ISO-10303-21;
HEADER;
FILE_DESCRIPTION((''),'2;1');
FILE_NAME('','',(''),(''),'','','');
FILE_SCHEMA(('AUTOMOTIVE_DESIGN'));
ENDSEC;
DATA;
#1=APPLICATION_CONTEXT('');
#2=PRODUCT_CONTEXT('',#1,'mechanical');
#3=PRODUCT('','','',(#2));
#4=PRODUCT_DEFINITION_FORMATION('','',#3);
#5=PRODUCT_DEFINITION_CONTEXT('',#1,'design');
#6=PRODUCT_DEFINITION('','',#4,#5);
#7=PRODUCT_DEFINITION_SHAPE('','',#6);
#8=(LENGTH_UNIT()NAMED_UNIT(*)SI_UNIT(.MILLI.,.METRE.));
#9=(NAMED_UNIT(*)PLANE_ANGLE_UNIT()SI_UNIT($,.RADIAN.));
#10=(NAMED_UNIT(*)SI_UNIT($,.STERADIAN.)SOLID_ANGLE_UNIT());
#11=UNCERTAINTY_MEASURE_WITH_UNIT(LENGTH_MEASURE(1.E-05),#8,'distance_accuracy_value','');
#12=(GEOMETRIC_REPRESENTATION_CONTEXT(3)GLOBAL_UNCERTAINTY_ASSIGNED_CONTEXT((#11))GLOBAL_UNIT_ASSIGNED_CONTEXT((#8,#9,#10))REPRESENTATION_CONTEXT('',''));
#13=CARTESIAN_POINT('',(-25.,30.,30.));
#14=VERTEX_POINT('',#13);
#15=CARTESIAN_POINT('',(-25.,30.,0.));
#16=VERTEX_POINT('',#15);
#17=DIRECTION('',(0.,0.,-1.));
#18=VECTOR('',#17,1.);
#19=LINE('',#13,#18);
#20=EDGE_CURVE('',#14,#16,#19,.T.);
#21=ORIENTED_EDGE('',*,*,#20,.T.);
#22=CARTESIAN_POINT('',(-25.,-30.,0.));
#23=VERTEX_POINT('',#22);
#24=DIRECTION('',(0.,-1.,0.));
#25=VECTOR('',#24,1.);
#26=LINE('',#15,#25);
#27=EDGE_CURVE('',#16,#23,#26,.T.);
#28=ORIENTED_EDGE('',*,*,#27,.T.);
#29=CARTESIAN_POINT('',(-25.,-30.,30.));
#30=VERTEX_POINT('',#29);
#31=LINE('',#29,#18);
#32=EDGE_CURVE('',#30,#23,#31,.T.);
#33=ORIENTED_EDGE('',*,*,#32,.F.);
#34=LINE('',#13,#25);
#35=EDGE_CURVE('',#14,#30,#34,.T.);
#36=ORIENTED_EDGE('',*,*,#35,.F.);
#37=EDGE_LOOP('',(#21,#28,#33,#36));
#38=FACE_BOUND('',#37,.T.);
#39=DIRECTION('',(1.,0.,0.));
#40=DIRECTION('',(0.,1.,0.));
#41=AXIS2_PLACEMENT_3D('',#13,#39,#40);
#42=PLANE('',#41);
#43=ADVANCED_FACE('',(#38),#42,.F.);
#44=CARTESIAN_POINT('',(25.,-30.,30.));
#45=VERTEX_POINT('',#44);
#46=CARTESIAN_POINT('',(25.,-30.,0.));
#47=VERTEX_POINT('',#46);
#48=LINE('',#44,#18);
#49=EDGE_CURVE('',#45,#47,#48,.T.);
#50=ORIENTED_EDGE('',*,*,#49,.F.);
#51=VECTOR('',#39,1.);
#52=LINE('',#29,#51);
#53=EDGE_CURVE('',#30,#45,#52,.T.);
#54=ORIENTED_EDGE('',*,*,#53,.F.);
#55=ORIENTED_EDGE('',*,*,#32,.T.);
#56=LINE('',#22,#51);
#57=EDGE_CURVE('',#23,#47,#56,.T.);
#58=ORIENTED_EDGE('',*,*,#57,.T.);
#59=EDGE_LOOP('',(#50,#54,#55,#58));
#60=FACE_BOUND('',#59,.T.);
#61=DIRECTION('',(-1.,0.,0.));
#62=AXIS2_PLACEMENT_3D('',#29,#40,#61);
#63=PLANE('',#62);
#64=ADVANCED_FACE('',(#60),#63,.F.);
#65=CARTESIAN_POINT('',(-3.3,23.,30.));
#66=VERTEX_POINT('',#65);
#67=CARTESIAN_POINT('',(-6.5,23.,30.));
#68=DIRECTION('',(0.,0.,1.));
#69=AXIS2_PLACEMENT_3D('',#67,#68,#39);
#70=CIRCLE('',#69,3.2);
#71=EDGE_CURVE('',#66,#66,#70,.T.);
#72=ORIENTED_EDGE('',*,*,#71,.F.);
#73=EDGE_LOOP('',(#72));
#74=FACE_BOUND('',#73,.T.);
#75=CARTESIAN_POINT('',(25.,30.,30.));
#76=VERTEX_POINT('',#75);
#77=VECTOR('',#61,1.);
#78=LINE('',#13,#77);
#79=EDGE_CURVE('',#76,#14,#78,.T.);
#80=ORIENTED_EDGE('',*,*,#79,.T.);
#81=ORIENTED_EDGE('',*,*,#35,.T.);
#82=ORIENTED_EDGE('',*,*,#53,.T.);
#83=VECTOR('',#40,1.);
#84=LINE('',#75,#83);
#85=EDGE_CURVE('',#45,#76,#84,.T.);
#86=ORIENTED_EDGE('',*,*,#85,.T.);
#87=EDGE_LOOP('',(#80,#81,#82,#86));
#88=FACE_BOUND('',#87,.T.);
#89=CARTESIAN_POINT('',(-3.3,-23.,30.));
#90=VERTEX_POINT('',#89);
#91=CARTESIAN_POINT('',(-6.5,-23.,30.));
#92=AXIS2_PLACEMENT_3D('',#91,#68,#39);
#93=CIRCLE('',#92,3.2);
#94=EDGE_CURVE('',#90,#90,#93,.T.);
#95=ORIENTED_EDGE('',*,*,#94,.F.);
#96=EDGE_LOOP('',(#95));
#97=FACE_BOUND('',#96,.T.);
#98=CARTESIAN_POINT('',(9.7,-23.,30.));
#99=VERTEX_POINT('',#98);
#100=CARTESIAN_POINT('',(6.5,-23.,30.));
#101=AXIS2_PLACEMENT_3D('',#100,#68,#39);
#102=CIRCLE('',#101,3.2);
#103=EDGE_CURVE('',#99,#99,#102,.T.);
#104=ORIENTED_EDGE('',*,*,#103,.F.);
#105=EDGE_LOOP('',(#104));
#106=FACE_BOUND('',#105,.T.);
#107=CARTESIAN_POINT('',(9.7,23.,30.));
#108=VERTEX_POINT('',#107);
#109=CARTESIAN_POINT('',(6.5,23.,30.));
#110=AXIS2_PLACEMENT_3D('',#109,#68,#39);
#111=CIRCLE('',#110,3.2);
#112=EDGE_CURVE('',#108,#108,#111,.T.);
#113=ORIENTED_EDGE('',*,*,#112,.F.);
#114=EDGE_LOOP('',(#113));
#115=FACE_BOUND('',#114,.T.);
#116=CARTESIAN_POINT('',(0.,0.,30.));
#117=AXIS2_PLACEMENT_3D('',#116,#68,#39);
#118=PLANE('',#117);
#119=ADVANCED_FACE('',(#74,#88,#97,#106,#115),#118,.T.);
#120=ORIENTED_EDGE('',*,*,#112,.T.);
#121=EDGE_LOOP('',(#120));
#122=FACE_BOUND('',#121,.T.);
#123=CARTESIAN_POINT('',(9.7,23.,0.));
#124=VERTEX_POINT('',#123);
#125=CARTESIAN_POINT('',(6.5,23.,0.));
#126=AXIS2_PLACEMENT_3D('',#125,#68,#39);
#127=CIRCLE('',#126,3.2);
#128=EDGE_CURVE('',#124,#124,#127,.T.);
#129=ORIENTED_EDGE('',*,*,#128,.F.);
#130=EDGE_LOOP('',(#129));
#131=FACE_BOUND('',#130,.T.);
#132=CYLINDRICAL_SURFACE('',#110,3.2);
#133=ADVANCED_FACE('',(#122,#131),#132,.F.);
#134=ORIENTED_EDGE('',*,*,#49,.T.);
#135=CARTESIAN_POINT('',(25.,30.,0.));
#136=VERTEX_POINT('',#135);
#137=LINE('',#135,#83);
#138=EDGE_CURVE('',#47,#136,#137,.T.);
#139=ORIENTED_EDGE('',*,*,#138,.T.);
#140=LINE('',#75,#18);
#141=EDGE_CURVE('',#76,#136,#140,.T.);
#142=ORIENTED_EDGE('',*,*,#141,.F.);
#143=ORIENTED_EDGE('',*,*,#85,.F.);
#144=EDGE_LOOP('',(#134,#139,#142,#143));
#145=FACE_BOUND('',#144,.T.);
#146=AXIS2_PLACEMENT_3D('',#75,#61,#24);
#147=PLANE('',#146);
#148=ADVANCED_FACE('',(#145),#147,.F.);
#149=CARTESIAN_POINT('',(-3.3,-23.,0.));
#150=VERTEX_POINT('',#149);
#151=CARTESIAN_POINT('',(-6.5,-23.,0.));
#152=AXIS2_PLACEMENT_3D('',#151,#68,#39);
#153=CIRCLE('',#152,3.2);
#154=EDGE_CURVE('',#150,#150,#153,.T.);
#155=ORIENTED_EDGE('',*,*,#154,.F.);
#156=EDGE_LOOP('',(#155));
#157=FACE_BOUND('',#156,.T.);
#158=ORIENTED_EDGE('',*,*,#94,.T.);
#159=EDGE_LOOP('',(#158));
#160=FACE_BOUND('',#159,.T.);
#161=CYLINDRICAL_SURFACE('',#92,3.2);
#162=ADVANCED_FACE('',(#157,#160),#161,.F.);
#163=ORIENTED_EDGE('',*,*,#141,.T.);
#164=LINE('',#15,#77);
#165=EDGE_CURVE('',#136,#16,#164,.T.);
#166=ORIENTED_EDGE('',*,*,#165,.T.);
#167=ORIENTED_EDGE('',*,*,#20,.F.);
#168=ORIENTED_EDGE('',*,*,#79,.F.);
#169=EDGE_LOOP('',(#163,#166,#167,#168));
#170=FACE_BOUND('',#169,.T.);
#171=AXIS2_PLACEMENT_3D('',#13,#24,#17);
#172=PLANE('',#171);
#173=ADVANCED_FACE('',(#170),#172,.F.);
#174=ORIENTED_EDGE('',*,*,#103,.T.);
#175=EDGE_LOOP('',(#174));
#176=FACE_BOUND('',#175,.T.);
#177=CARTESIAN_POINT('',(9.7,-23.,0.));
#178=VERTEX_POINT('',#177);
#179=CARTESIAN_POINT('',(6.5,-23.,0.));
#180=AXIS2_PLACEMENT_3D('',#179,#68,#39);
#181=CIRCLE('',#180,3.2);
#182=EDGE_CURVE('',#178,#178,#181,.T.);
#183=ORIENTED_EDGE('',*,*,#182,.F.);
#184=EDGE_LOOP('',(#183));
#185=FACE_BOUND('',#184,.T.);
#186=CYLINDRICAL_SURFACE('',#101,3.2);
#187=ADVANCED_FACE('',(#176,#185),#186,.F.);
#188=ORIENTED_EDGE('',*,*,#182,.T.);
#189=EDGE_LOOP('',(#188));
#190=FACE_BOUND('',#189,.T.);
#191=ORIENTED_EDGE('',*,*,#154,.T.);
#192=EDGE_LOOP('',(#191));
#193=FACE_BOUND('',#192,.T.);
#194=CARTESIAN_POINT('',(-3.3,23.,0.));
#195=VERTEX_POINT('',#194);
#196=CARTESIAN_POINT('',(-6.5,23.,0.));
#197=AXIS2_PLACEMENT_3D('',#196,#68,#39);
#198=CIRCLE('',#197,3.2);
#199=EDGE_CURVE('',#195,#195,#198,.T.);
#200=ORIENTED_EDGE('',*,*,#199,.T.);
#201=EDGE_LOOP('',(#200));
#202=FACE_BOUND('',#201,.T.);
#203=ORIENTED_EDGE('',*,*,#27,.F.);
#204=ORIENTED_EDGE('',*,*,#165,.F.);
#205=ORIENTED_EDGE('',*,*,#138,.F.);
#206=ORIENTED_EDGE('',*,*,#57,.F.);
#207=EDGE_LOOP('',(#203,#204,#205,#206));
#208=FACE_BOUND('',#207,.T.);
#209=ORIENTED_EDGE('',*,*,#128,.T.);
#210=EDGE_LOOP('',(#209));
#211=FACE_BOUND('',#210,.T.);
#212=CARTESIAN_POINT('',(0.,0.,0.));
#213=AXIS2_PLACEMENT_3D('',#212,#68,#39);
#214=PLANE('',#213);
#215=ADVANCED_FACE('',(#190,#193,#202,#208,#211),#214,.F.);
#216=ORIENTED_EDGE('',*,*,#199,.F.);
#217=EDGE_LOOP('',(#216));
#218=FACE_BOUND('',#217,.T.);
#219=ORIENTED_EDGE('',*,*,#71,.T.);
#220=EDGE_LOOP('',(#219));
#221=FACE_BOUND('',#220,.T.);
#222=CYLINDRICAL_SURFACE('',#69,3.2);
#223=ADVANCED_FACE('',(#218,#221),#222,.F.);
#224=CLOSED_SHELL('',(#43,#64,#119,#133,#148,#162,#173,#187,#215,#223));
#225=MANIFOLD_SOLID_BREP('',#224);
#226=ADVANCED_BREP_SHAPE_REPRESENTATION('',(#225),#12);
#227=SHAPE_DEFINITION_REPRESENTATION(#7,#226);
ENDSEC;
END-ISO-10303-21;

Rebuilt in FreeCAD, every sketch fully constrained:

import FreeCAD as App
import Part
import Sketcher

V = App.Vector


def add_polygon(sketch, points):
    """Adds a closed chain of lines whose ends are joined by coincident constraints."""
    first, n = sketch.GeometryCount, len(points)
    for a, b in zip(points, points[1:] + points[:1]):
        sketch.addGeometry(Part.LineSegment(App.Vector(*a, 0), App.Vector(*b, 0)), False)
    for i in range(n):
        sketch.addConstraint(Sketcher.Constraint("Coincident", first + i, 2, first + (i + 1) % n, 1))

doc = App.newDocument("Part")
body = doc.addObject("PartDesign::Body", "Body")

# Sketch on XY plane
sketch1 = doc.addObject("Sketcher::SketchObject", "Sketch")
body.addObject(sketch1)
sketch1.AttachmentSupport = (doc.XY_Plane, [""])
sketch1.MapMode = "FlatFace"
add_polygon(sketch1, [(-25, 30), (-25, -30), (25, -30), (25, 30)])  # lines 0-3
sketch1.addConstraint([
    Sketcher.Constraint("Vertical", 0),
    Sketcher.Constraint("Horizontal", 1),
    Sketcher.Constraint("Vertical", 2),
    Sketcher.Constraint("Horizontal", 3),
    Sketcher.Constraint("Symmetric", 0, 2, 2, 2, -1, 1),
    Sketcher.Constraint("DistanceX", 1, 1, 1, 2, 50.0),
    Sketcher.Constraint("DistanceY", 0, 2, 0, 1, 60.0),
])
pad1 = doc.addObject("PartDesign::Pad", "Pad")
body.addObject(pad1)
pad1.Profile = sketch1
pad1.Length = 30

# Sketch on XY plane
sketch2 = doc.addObject("Sketcher::SketchObject", "Sketch001")
body.addObject(sketch2)
sketch2.AttachmentSupport = (doc.XY_Plane, [""])
sketch2.MapMode = "FlatFace"
sketch2.AttachmentOffset = App.Placement(V(0, 0, 30), App.Rotation())
sketch2.addGeometry([
    Part.Circle(V(-6.5, 23, 0), V(0, 0, 1), 3.2),
    Part.Circle(V(-6.5, -23, 0), V(0, 0, 1), 3.2),
    Part.Circle(V(6.5, -23, 0), V(0, 0, 1), 3.2),
    Part.Circle(V(6.5, 23, 0), V(0, 0, 1), 3.2),
], False)
sketch2.addConstraint([
    Sketcher.Constraint("Equal", 0, 1),
    Sketcher.Constraint("Equal", 1, 2),
    Sketcher.Constraint("Equal", 2, 3),
    Sketcher.Constraint("Symmetric", 0, 3, 2, 3, -1, 1),
    Sketcher.Constraint("Symmetric", 1, 3, 3, 3, -1, 1),
    Sketcher.Constraint("Symmetric", 1, 3, 2, 3, -2),
    Sketcher.Constraint("Diameter", 0, 6.4),
    Sketcher.Constraint("DistanceY", -1, 1, 0, 3, 23.0),
    Sketcher.Constraint("DistanceX", 1, 3, 2, 3, 13.0),
])
doc.recompute()
hole = doc.addObject("PartDesign::Hole", "Hole")
body.addObject(hole)
hole.Profile = sketch2
hole.ThreadType = "None"
hole.Diameter = 6.4
hole.DepthType = "ThroughAll"

doc.recompute()
